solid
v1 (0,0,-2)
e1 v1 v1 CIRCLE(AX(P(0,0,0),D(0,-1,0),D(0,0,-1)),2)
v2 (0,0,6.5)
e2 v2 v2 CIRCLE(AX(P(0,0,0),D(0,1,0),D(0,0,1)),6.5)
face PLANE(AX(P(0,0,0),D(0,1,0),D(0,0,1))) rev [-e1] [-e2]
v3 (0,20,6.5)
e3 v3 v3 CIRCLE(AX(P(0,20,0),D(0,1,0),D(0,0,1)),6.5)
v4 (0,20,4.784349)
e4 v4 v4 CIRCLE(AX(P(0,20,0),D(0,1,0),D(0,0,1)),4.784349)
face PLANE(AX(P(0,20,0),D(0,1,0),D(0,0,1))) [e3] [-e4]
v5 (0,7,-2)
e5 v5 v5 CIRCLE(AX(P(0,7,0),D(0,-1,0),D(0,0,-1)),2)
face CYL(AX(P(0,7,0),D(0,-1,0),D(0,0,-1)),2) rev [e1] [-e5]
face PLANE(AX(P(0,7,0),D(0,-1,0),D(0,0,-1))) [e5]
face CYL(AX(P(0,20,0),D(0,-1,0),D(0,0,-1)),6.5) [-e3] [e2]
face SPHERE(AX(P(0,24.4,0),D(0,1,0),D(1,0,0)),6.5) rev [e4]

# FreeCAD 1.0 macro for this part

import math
import FreeCAD as App
import Part
import Sketcher
from FreeCAD import Vector

doc = App.newDocument("Part")
body = doc.addObject("PartDesign::Body", "Body")

sketch1 = body.newObject("Sketcher::SketchObject", "Sketch")
sketch1.AttachmentSupport = (doc.getObject("XZ_Plane"), [""])
sketch1.MapMode = "FlatFace"
sketch1.addGeometry(Part.Circle(Vector(0, 0, 0), Vector(0, 0, 1), 6), False)
sketch1.addConstraint(Sketcher.Constraint("Coincident", 0, 3, -1, 1))
sketch1.addConstraint(Sketcher.Constraint("Diameter", 0, 13.0))
pad1 = body.newObject("PartDesign::Pad", "Pad")
pad1.Profile = sketch1
pad1.Length = 20
pad1.Reversed = True

sketch2 = body.newObject("Sketcher::SketchObject", "Sketch001")
sketch2.AttachmentSupport = (doc.getObject("XZ_Plane"), [""])
sketch2.MapMode = "FlatFace"
sketch2.addGeometry(Part.Circle(Vector(0, 0, 0), Vector(0, 0, 1), 2), False)
sketch2.addConstraint(Sketcher.Constraint("Coincident", 0, 3, -1, 1))
sketch2.addConstraint(Sketcher.Constraint("Diameter", 0, 4.0))
pocket1 = body.newObject("PartDesign::Pocket", "Pocket")
pocket1.Profile = sketch2
pocket1.Length = 7

sketch3 = body.newObject("Sketcher::SketchObject", "Sketch002")
sketch3.AttachmentSupport = (doc.getObject("XY_Plane"), [""])
sketch3.MapMode = "FlatFace"
sketch3.addGeometry(Part.LineSegment(Vector(0, 18, 0), Vector(0, 31, 0)), False)
sketch3.addGeometry(Part.ArcOfCircle(Part.Circle(Vector(0, 24, 0), Vector(0, 0, 1), 6), math.radians(90), math.radians(270)), False)
sketch3.addConstraint(Sketcher.Constraint("Coincident", 0, 1, 1, 2))
sketch3.addConstraint(Sketcher.Constraint("Coincident", 1, 1, 0, 2))
sketch3.addConstraint(Sketcher.Constraint("Vertical", 0))
sketch3.addConstraint(Sketcher.Constraint("PointOnObject", 1, 3, -2))
sketch3.addConstraint(Sketcher.Constraint("PointOnObject", 0, 1, -2))
sketch3.addConstraint(Sketcher.Constraint("Radius", 1, 6.5))
sketch3.addConstraint(Sketcher.Constraint("DistanceY", -1, 1, 1, 3, 24.4))
groove = body.newObject("PartDesign::Groove", "Groove")
groove.Profile = sketch3
groove.ReferenceAxis = (sketch3, ["V_Axis"])
groove.Angle = 360

doc.recompute()
